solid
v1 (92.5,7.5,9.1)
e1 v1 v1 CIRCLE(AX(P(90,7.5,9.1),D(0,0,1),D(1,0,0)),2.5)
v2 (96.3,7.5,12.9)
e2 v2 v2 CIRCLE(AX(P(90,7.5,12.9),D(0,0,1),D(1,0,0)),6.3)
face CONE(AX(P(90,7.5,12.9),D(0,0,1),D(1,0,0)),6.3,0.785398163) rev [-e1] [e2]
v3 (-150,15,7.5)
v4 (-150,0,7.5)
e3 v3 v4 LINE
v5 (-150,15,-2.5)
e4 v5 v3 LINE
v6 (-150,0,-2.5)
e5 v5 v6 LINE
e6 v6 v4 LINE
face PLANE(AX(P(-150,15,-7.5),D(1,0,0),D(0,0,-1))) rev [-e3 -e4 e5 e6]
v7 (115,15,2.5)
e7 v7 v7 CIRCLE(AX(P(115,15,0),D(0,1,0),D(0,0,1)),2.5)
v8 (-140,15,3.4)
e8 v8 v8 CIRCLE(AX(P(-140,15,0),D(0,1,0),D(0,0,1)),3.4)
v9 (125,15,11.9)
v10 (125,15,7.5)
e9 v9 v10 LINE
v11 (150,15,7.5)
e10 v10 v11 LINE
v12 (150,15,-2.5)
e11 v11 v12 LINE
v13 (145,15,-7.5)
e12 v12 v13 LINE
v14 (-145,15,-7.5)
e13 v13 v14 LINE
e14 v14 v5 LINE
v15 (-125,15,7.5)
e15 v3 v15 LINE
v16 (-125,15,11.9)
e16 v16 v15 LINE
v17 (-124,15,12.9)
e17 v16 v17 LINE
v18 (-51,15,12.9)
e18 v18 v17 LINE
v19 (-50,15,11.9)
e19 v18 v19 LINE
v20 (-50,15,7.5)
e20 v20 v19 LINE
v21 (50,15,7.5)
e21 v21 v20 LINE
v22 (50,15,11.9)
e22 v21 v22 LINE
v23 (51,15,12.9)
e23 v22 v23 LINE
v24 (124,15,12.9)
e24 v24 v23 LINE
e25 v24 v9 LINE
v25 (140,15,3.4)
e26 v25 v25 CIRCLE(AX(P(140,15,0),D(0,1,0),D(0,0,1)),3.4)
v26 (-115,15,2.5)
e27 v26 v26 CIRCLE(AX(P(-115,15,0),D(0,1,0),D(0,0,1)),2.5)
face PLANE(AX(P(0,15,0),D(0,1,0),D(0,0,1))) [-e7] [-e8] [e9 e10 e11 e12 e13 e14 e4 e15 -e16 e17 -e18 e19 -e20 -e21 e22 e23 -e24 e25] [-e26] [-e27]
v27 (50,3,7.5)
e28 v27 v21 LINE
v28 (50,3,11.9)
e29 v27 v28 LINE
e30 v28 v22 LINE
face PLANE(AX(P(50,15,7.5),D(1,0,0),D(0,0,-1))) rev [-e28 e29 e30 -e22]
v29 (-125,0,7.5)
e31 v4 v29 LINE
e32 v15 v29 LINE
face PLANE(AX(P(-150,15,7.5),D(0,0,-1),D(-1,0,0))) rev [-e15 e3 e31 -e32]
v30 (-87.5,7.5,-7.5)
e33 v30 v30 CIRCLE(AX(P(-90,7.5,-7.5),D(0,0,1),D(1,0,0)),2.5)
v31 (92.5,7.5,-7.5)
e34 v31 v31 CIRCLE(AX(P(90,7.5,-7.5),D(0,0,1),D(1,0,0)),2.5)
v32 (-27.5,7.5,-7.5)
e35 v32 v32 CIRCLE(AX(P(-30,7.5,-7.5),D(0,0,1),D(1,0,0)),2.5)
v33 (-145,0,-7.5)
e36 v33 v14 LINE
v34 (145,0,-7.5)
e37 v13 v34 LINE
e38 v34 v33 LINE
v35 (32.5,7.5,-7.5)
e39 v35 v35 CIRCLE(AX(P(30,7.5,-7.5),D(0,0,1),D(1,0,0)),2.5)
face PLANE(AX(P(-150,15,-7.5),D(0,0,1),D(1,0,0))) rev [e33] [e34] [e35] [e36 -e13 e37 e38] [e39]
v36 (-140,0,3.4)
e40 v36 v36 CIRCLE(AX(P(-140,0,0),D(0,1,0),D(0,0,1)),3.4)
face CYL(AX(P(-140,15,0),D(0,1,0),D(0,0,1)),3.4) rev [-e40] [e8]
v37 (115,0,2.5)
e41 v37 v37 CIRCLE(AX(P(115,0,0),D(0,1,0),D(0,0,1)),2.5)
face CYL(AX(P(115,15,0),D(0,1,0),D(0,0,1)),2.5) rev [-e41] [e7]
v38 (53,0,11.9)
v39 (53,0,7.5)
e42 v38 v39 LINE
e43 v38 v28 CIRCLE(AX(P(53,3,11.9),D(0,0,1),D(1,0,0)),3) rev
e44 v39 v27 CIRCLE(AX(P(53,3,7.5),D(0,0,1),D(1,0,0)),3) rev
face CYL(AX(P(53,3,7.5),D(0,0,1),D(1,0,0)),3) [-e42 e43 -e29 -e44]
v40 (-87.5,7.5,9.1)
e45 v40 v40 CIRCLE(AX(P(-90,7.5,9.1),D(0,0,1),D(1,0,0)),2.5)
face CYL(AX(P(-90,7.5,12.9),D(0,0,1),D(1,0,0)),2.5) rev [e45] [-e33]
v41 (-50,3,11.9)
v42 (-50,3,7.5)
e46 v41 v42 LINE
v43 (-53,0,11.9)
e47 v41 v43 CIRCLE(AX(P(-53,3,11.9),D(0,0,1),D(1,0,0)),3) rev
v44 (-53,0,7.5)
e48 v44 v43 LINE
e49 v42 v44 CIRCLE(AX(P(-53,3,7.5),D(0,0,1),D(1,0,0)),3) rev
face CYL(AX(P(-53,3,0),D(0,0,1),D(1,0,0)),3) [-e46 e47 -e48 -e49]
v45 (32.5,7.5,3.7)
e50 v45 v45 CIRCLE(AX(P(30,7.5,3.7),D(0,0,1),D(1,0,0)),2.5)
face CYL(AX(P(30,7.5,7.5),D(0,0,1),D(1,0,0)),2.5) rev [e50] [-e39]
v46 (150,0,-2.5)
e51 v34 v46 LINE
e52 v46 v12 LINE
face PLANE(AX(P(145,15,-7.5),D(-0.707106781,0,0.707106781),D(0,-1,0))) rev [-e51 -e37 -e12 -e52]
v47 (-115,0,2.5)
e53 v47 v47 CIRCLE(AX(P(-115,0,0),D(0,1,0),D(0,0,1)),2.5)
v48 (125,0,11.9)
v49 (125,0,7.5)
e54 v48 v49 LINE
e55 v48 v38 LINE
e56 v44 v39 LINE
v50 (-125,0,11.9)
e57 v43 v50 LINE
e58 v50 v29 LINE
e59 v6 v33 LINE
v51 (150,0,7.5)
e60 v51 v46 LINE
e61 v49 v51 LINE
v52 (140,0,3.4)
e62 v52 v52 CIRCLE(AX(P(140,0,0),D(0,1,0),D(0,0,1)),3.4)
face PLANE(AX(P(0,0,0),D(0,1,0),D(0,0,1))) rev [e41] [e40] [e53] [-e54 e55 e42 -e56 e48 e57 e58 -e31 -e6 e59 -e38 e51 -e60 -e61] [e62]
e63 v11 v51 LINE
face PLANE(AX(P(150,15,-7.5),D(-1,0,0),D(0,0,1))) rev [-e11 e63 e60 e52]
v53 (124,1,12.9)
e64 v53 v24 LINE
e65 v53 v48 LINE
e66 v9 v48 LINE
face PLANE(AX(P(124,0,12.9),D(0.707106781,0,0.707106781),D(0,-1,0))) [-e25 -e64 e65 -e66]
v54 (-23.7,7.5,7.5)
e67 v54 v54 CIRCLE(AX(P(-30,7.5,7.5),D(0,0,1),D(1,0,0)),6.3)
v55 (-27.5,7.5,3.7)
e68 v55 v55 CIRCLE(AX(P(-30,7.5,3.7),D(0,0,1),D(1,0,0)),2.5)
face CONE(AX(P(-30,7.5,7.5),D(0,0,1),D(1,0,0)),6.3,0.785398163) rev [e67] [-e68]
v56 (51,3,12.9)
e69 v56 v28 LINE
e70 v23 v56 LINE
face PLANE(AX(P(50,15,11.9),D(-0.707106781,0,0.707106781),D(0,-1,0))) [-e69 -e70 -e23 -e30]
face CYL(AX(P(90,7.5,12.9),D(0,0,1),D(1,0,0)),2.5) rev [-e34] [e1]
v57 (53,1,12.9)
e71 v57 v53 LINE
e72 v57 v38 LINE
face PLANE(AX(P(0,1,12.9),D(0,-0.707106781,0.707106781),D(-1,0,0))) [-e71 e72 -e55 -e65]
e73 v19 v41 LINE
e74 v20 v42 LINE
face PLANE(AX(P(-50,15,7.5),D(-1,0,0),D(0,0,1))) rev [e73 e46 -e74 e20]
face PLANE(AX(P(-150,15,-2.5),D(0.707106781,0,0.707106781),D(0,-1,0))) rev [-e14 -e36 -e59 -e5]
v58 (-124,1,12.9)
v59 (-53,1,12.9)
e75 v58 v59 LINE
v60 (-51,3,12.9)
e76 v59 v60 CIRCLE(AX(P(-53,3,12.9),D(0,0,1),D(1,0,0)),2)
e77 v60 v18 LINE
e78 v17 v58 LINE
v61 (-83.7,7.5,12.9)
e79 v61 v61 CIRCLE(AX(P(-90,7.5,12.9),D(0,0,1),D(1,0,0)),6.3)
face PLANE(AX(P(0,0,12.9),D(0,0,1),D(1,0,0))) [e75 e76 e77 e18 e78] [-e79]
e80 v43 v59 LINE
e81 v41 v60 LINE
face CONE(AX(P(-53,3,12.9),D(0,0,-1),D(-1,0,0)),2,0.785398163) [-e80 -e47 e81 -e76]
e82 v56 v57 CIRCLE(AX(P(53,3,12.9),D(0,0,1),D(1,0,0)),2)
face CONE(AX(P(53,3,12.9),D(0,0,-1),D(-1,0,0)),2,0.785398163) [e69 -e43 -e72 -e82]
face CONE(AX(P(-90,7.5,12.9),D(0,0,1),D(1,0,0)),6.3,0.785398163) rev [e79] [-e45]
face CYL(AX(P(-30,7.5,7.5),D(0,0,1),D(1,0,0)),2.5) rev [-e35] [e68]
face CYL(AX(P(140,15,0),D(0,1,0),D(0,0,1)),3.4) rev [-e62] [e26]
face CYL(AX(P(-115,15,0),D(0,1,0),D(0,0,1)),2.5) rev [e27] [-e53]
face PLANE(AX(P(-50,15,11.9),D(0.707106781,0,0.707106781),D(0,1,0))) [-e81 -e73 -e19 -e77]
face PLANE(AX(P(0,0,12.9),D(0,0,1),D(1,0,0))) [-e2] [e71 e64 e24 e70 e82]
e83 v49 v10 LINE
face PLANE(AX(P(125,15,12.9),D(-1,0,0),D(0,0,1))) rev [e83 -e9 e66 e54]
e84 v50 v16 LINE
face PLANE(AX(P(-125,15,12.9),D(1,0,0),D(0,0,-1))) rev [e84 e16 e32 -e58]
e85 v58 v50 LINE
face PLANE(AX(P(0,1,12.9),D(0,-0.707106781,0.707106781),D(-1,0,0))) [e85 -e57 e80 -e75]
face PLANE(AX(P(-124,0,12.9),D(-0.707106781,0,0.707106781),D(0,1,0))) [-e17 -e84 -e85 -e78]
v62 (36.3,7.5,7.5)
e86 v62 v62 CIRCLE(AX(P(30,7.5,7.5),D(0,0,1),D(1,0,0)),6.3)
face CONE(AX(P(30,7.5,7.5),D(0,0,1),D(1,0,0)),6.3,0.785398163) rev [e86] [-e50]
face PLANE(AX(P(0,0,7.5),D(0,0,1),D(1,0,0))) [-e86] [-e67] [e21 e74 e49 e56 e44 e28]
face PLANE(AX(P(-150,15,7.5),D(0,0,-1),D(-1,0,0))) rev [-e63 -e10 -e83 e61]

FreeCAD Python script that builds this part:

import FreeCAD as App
import Part
import Sketcher

V = App.Vector
Q = App.Units.Quantity


def edges_at(feature, points):
    """Names of the edges that pass closest to the given points."""
    edges = feature.Shape.Edges
    near = lambda p: min(range(len(edges)), key=lambda i: edges[i].distToShape(Part.Vertex(*p))[0])
    return sorted({f"Edge{near(p) + 1}" for p in points})

doc = App.newDocument("Part")
body = doc.addObject("PartDesign::Body", "Body")

sketch1 = body.newObject("Sketcher::SketchObject", "Sketch")
sketch1.AttachmentSupport = (doc.getObject("XZ_Plane"), [""])
sketch1.MapMode = "FlatFace"
sketch1.addGeometry(Part.LineSegment(V(-150, -8, 0), V(-150, 8, 0)), False)
sketch1.addGeometry(Part.LineSegment(V(-150, 8, 0), V(150, 8, 0)), False)
sketch1.addGeometry(Part.LineSegment(V(150, 8, 0), V(150, -8, 0)), False)
sketch1.addGeometry(Part.LineSegment(V(150, -8, 0), V(-150, -8, 0)), False)
sketch1.addConstraint(Sketcher.Constraint("Coincident", 0, 2, 1, 1))
sketch1.addConstraint(Sketcher.Constraint("Coincident", 1, 2, 2, 1))
sketch1.addConstraint(Sketcher.Constraint("Coincident", 2, 2, 3, 1))
sketch1.addConstraint(Sketcher.Constraint("Coincident", 3, 2, 0, 1))
sketch1.addConstraint(Sketcher.Constraint("Vertical", 0))
sketch1.addConstraint(Sketcher.Constraint("Horizontal", 1))
sketch1.addConstraint(Sketcher.Constraint("Vertical", 2))
sketch1.addConstraint(Sketcher.Constraint("Horizontal", 3))
sketch1.addConstraint(Sketcher.Constraint("Symmetric", 0, 2, 2, 2, -1, 1))
sketch1.addConstraint(Sketcher.Constraint("DistanceX", 1, 1, 1, 2, Q("300 mm")))
sketch1.addConstraint(Sketcher.Constraint("DistanceY", 0, 1, 0, 2, Q("15 mm")))
pad1 = body.newObject("PartDesign::Pad", "Pad")
pad1.Profile = sketch1
pad1.Length = 15
pad1.Reversed = True

sketch2 = body.newObject("Sketcher::SketchObject", "Sketch001")
sketch2.AttachmentSupport = (doc.getObject("XZ_Plane"), [""])
sketch2.MapMode = "FlatFace"
sketch2.AttachmentOffset = App.Placement(V(0, 0, -15), App.Rotation())
sketch2.addGeometry(Part.Circle(V(-115, 0, 0), V(0, 0, 1), 2.5), False)
sketch2.addGeometry(Part.Circle(V(115, 0, 0), V(0, 0, 1), 2.5), False)
sketch2.addConstraint(Sketcher.Constraint("Equal", 0, 1))
sketch2.addConstraint(Sketcher.Constraint("Symmetric", 0, 3, 1, 3, -1, 1))
sketch2.addConstraint(Sketcher.Constraint("PointOnObject", 0, 3, -1))
sketch2.addConstraint(Sketcher.Constraint("Diameter", 0, Q("5 mm")))
sketch2.addConstraint(Sketcher.Constraint("DistanceX", 0, 3, -1, 1, Q("115 mm")))
doc.recompute()
hole = body.newObject("PartDesign::Hole", "Hole")
hole.Profile = sketch2
hole.ThreadType = "None"
hole.Diameter = 5
hole.DepthType = "ThroughAll"
hole.Reversed = True

sketch3 = body.newObject("Sketcher::SketchObject", "Sketch002")
sketch3.AttachmentSupport = (doc.getObject("XZ_Plane"), [""])
sketch3.MapMode = "FlatFace"
sketch3.AttachmentOffset = App.Placement(V(0, 0, -15), App.Rotation())
sketch3.addGeometry(Part.Circle(V(-140, 0, 0), V(0, 0, 1), 3.4), False)
sketch3.addGeometry(Part.Circle(V(140, 0, 0), V(0, 0, 1), 3.4), False)
sketch3.addConstraint(Sketcher.Constraint("Equal", 0, 1))
sketch3.addConstraint(Sketcher.Constraint("Symmetric", 0, 3, 1, 3, -1, 1))
sketch3.addConstraint(Sketcher.Constraint("PointOnObject", 0, 3, -1))
sketch3.addConstraint(Sketcher.Constraint("Diameter", 0, Q("6.8 mm")))
sketch3.addConstraint(Sketcher.Constraint("DistanceX", 0, 3, -1, 1, Q("140 mm")))
doc.recompute()
hole2 = body.newObject("PartDesign::Hole", "Hole001")
hole2.Profile = sketch3
hole2.ThreadType = "None"
hole2.Diameter = 6.8
hole2.DepthType = "ThroughAll"
hole2.Reversed = True

sketch4 = body.newObject("Sketcher::SketchObject", "Sketch003")
sketch4.AttachmentSupport = (doc.getObject("XY_Plane"), [""])
sketch4.MapMode = "FlatFace"
sketch4.AttachmentOffset = App.Placement(V(0, 0, 7.5), App.Rotation())
sketch4.addGeometry(Part.LineSegment(V(-125, 15, 0), V(-125, 0, 0)), False)
sketch4.addGeometry(Part.LineSegment(V(-125, 0, 0), V(125, 0, 0)), False)
sketch4.addGeometry(Part.LineSegment(V(125, 0, 0), V(125, 15, 0)), False)
sketch4.addGeometry(Part.LineSegment(V(125, 15, 0), V(-125, 15, 0)), False)
sketch4.addConstraint(Sketcher.Constraint("Coincident", 0, 2, 1, 1))
sketch4.addConstraint(Sketcher.Constraint("Coincident", 1, 2, 2, 1))
sketch4.addConstraint(Sketcher.Constraint("Coincident", 2, 2, 3, 1))
sketch4.addConstraint(Sketcher.Constraint("Coincident", 3, 2, 0, 1))
sketch4.addConstraint(Sketcher.Constraint("Vertical", 0))
sketch4.addConstraint(Sketcher.Constraint("Horizontal", 1))
sketch4.addConstraint(Sketcher.Constraint("Vertical", 2))
sketch4.addConstraint(Sketcher.Constraint("Horizontal", 3))
sketch4.addConstraint(Sketcher.Constraint("Symmetric", 0, 2, 1, 2, -1, 1))
sketch4.addConstraint(Sketcher.Constraint("DistanceX", 1, 1, 1, 2, Q("250 mm")))
sketch4.addConstraint(Sketcher.Constraint("DistanceY", 0, 2, 0, 1, Q("15 mm")))
pad2 = body.newObject("PartDesign::Pad", "Pad001")
pad2.Profile = sketch4
pad2.Length = 5.4

sketch5 = body.newObject("Sketcher::SketchObject", "Sketch004")
sketch5.AttachmentSupport = (doc.getObject("XY_Plane"), [""])
sketch5.MapMode = "FlatFace"
sketch5.AttachmentOffset = App.Placement(V(0, 0, 12.9), App.Rotation())
sketch5.addGeometry(Part.LineSegment(V(-50, 15, 0), V(-50, 0, 0)), False)
sketch5.addGeometry(Part.LineSegment(V(-50, 0, 0), V(50, 0, 0)), False)
sketch5.addGeometry(Part.LineSegment(V(50, 0, 0), V(50, 15, 0)), False)
sketch5.addGeometry(Part.LineSegment(V(50, 15, 0), V(-50, 15, 0)), False)
sketch5.addConstraint(Sketcher.Constraint("Coincident", 0, 2, 1, 1))
sketch5.addConstraint(Sketcher.Constraint("Coincident", 1, 2, 2, 1))
sketch5.addConstraint(Sketcher.Constraint("Coincident", 2, 2, 3, 1))
sketch5.addConstraint(Sketcher.Constraint("Coincident", 3, 2, 0, 1))
sketch5.addConstraint(Sketcher.Constraint("Vertical", 0))
sketch5.addConstraint(Sketcher.Constraint("Horizontal", 1))
sketch5.addConstraint(Sketcher.Constraint("Vertical", 2))
sketch5.addConstraint(Sketcher.Constraint("Horizontal", 3))
sketch5.addConstraint(Sketcher.Constraint("Symmetric", 0, 2, 1, 2, -1, 1))
sketch5.addConstraint(Sketcher.Constraint("DistanceX", 1, 1, 1, 2, Q("100 mm")))
sketch5.addConstraint(Sketcher.Constraint("DistanceY", 0, 2, 0, 1, Q("15 mm")))
pocket1 = body.newObject("PartDesign::Pocket", "Pocket")
pocket1.Profile = sketch5
pocket1.Length = 5.4

sketch6 = body.newObject("Sketcher::SketchObject", "Sketch005")
sketch6.AttachmentSupport = (doc.getObject("XY_Plane"), [""])
sketch6.MapMode = "FlatFace"
sketch6.AttachmentOffset = App.Placement(V(0, 0, 12.9), App.Rotation())
sketch6.addGeometry(Part.Circle(V(-90, 7.5, 0), V(0, 0, 1), 2.5), False)
sketch6.addGeometry(Part.Circle(V(90, 7.5, 0), V(0, 0, 1), 2.5), False)
sketch6.addConstraint(Sketcher.Constraint("Equal", 0, 1))
sketch6.addConstraint(Sketcher.Constraint("Symmetric", 0, 3, 1, 3, -2))
sketch6.addConstraint(Sketcher.Constraint("Diameter", 0, Q("5 mm")))
sketch6.addConstraint(Sketcher.Constraint("DistanceX", 0, 3, -1, 1, Q("90 mm")))
sketch6.addConstraint(Sketcher.Constraint("DistanceY", -1, 1, 0, 3, Q("7.5 mm")))
doc.recompute()
hole3 = body.newObject("PartDesign::Hole", "Hole002")
hole3.Profile = sketch6
hole3.ThreadType = "None"
hole3.Diameter = 5
hole3.DepthType = "ThroughAll"
hole3.HoleCutType = "Countersink"
hole3.HoleCutDiameter = 12.6
hole3.HoleCutCountersinkAngle = 90

sketch7 = body.newObject("Sketcher::SketchObject", "Sketch006")
sketch7.AttachmentSupport = (doc.getObject("XY_Plane"), [""])
sketch7.MapMode = "FlatFace"
sketch7.AttachmentOffset = App.Placement(V(0, 0, 7.5), App.Rotation())
sketch7.addGeometry(Part.Circle(V(-30, 7.5, 0), V(0, 0, 1), 2.5), False)
sketch7.addGeometry(Part.Circle(V(30, 7.5, 0), V(0, 0, 1), 2.5), False)
sketch7.addConstraint(Sketcher.Constraint("Equal", 0, 1))
sketch7.addConstraint(Sketcher.Constraint("Symmetric", 0, 3, 1, 3, -2))
sketch7.addConstraint(Sketcher.Constraint("Diameter", 0, Q("5 mm")))
sketch7.addConstraint(Sketcher.Constraint("DistanceX", 0, 3, -1, 1, Q("30 mm")))
sketch7.addConstraint(Sketcher.Constraint("DistanceY", -1, 1, 0, 3, Q("7.5 mm")))
doc.recompute()
hole4 = body.newObject("PartDesign::Hole", "Hole003")
hole4.Profile = sketch7
hole4.ThreadType = "None"
hole4.Diameter = 5
hole4.DepthType = "ThroughAll"
hole4.HoleCutType = "Countersink"
hole4.HoleCutDiameter = 12.6
hole4.HoleCutCountersinkAngle = 90
doc.recompute()

fillet = body.newObject("PartDesign::Fillet", "Fillet")
fillet.Base = (hole4, edges_at(hole4, [(-50, 0, 10.2), (50, 0, 10.2)]))
fillet.Radius = 3
doc.recompute()

chamfer = body.newObject("PartDesign::Chamfer", "Chamfer")
chamfer.Base = (fillet, edges_at(fillet, [(-150, 7.5, -7.5), (150, 7.5, -7.5)]))
chamfer.Size = 5
doc.recompute()

chamfer2 = body.newObject("PartDesign::Chamfer", "Chamfer001")
chamfer2.Base = (chamfer, edges_at(chamfer, [
    (-125, 7.5, 12.9),
    (-89, 0, 12.9),
    (125, 7.5, 12.9),
    (-50, 9, 12.9),
    (50, 9, 12.9),
    (89, 0, 12.9),
    (50.879, 0.879, 12.9),
    (-50.879, 0.879, 12.9),
]))
chamfer2.Size = 1

doc.recompute()
